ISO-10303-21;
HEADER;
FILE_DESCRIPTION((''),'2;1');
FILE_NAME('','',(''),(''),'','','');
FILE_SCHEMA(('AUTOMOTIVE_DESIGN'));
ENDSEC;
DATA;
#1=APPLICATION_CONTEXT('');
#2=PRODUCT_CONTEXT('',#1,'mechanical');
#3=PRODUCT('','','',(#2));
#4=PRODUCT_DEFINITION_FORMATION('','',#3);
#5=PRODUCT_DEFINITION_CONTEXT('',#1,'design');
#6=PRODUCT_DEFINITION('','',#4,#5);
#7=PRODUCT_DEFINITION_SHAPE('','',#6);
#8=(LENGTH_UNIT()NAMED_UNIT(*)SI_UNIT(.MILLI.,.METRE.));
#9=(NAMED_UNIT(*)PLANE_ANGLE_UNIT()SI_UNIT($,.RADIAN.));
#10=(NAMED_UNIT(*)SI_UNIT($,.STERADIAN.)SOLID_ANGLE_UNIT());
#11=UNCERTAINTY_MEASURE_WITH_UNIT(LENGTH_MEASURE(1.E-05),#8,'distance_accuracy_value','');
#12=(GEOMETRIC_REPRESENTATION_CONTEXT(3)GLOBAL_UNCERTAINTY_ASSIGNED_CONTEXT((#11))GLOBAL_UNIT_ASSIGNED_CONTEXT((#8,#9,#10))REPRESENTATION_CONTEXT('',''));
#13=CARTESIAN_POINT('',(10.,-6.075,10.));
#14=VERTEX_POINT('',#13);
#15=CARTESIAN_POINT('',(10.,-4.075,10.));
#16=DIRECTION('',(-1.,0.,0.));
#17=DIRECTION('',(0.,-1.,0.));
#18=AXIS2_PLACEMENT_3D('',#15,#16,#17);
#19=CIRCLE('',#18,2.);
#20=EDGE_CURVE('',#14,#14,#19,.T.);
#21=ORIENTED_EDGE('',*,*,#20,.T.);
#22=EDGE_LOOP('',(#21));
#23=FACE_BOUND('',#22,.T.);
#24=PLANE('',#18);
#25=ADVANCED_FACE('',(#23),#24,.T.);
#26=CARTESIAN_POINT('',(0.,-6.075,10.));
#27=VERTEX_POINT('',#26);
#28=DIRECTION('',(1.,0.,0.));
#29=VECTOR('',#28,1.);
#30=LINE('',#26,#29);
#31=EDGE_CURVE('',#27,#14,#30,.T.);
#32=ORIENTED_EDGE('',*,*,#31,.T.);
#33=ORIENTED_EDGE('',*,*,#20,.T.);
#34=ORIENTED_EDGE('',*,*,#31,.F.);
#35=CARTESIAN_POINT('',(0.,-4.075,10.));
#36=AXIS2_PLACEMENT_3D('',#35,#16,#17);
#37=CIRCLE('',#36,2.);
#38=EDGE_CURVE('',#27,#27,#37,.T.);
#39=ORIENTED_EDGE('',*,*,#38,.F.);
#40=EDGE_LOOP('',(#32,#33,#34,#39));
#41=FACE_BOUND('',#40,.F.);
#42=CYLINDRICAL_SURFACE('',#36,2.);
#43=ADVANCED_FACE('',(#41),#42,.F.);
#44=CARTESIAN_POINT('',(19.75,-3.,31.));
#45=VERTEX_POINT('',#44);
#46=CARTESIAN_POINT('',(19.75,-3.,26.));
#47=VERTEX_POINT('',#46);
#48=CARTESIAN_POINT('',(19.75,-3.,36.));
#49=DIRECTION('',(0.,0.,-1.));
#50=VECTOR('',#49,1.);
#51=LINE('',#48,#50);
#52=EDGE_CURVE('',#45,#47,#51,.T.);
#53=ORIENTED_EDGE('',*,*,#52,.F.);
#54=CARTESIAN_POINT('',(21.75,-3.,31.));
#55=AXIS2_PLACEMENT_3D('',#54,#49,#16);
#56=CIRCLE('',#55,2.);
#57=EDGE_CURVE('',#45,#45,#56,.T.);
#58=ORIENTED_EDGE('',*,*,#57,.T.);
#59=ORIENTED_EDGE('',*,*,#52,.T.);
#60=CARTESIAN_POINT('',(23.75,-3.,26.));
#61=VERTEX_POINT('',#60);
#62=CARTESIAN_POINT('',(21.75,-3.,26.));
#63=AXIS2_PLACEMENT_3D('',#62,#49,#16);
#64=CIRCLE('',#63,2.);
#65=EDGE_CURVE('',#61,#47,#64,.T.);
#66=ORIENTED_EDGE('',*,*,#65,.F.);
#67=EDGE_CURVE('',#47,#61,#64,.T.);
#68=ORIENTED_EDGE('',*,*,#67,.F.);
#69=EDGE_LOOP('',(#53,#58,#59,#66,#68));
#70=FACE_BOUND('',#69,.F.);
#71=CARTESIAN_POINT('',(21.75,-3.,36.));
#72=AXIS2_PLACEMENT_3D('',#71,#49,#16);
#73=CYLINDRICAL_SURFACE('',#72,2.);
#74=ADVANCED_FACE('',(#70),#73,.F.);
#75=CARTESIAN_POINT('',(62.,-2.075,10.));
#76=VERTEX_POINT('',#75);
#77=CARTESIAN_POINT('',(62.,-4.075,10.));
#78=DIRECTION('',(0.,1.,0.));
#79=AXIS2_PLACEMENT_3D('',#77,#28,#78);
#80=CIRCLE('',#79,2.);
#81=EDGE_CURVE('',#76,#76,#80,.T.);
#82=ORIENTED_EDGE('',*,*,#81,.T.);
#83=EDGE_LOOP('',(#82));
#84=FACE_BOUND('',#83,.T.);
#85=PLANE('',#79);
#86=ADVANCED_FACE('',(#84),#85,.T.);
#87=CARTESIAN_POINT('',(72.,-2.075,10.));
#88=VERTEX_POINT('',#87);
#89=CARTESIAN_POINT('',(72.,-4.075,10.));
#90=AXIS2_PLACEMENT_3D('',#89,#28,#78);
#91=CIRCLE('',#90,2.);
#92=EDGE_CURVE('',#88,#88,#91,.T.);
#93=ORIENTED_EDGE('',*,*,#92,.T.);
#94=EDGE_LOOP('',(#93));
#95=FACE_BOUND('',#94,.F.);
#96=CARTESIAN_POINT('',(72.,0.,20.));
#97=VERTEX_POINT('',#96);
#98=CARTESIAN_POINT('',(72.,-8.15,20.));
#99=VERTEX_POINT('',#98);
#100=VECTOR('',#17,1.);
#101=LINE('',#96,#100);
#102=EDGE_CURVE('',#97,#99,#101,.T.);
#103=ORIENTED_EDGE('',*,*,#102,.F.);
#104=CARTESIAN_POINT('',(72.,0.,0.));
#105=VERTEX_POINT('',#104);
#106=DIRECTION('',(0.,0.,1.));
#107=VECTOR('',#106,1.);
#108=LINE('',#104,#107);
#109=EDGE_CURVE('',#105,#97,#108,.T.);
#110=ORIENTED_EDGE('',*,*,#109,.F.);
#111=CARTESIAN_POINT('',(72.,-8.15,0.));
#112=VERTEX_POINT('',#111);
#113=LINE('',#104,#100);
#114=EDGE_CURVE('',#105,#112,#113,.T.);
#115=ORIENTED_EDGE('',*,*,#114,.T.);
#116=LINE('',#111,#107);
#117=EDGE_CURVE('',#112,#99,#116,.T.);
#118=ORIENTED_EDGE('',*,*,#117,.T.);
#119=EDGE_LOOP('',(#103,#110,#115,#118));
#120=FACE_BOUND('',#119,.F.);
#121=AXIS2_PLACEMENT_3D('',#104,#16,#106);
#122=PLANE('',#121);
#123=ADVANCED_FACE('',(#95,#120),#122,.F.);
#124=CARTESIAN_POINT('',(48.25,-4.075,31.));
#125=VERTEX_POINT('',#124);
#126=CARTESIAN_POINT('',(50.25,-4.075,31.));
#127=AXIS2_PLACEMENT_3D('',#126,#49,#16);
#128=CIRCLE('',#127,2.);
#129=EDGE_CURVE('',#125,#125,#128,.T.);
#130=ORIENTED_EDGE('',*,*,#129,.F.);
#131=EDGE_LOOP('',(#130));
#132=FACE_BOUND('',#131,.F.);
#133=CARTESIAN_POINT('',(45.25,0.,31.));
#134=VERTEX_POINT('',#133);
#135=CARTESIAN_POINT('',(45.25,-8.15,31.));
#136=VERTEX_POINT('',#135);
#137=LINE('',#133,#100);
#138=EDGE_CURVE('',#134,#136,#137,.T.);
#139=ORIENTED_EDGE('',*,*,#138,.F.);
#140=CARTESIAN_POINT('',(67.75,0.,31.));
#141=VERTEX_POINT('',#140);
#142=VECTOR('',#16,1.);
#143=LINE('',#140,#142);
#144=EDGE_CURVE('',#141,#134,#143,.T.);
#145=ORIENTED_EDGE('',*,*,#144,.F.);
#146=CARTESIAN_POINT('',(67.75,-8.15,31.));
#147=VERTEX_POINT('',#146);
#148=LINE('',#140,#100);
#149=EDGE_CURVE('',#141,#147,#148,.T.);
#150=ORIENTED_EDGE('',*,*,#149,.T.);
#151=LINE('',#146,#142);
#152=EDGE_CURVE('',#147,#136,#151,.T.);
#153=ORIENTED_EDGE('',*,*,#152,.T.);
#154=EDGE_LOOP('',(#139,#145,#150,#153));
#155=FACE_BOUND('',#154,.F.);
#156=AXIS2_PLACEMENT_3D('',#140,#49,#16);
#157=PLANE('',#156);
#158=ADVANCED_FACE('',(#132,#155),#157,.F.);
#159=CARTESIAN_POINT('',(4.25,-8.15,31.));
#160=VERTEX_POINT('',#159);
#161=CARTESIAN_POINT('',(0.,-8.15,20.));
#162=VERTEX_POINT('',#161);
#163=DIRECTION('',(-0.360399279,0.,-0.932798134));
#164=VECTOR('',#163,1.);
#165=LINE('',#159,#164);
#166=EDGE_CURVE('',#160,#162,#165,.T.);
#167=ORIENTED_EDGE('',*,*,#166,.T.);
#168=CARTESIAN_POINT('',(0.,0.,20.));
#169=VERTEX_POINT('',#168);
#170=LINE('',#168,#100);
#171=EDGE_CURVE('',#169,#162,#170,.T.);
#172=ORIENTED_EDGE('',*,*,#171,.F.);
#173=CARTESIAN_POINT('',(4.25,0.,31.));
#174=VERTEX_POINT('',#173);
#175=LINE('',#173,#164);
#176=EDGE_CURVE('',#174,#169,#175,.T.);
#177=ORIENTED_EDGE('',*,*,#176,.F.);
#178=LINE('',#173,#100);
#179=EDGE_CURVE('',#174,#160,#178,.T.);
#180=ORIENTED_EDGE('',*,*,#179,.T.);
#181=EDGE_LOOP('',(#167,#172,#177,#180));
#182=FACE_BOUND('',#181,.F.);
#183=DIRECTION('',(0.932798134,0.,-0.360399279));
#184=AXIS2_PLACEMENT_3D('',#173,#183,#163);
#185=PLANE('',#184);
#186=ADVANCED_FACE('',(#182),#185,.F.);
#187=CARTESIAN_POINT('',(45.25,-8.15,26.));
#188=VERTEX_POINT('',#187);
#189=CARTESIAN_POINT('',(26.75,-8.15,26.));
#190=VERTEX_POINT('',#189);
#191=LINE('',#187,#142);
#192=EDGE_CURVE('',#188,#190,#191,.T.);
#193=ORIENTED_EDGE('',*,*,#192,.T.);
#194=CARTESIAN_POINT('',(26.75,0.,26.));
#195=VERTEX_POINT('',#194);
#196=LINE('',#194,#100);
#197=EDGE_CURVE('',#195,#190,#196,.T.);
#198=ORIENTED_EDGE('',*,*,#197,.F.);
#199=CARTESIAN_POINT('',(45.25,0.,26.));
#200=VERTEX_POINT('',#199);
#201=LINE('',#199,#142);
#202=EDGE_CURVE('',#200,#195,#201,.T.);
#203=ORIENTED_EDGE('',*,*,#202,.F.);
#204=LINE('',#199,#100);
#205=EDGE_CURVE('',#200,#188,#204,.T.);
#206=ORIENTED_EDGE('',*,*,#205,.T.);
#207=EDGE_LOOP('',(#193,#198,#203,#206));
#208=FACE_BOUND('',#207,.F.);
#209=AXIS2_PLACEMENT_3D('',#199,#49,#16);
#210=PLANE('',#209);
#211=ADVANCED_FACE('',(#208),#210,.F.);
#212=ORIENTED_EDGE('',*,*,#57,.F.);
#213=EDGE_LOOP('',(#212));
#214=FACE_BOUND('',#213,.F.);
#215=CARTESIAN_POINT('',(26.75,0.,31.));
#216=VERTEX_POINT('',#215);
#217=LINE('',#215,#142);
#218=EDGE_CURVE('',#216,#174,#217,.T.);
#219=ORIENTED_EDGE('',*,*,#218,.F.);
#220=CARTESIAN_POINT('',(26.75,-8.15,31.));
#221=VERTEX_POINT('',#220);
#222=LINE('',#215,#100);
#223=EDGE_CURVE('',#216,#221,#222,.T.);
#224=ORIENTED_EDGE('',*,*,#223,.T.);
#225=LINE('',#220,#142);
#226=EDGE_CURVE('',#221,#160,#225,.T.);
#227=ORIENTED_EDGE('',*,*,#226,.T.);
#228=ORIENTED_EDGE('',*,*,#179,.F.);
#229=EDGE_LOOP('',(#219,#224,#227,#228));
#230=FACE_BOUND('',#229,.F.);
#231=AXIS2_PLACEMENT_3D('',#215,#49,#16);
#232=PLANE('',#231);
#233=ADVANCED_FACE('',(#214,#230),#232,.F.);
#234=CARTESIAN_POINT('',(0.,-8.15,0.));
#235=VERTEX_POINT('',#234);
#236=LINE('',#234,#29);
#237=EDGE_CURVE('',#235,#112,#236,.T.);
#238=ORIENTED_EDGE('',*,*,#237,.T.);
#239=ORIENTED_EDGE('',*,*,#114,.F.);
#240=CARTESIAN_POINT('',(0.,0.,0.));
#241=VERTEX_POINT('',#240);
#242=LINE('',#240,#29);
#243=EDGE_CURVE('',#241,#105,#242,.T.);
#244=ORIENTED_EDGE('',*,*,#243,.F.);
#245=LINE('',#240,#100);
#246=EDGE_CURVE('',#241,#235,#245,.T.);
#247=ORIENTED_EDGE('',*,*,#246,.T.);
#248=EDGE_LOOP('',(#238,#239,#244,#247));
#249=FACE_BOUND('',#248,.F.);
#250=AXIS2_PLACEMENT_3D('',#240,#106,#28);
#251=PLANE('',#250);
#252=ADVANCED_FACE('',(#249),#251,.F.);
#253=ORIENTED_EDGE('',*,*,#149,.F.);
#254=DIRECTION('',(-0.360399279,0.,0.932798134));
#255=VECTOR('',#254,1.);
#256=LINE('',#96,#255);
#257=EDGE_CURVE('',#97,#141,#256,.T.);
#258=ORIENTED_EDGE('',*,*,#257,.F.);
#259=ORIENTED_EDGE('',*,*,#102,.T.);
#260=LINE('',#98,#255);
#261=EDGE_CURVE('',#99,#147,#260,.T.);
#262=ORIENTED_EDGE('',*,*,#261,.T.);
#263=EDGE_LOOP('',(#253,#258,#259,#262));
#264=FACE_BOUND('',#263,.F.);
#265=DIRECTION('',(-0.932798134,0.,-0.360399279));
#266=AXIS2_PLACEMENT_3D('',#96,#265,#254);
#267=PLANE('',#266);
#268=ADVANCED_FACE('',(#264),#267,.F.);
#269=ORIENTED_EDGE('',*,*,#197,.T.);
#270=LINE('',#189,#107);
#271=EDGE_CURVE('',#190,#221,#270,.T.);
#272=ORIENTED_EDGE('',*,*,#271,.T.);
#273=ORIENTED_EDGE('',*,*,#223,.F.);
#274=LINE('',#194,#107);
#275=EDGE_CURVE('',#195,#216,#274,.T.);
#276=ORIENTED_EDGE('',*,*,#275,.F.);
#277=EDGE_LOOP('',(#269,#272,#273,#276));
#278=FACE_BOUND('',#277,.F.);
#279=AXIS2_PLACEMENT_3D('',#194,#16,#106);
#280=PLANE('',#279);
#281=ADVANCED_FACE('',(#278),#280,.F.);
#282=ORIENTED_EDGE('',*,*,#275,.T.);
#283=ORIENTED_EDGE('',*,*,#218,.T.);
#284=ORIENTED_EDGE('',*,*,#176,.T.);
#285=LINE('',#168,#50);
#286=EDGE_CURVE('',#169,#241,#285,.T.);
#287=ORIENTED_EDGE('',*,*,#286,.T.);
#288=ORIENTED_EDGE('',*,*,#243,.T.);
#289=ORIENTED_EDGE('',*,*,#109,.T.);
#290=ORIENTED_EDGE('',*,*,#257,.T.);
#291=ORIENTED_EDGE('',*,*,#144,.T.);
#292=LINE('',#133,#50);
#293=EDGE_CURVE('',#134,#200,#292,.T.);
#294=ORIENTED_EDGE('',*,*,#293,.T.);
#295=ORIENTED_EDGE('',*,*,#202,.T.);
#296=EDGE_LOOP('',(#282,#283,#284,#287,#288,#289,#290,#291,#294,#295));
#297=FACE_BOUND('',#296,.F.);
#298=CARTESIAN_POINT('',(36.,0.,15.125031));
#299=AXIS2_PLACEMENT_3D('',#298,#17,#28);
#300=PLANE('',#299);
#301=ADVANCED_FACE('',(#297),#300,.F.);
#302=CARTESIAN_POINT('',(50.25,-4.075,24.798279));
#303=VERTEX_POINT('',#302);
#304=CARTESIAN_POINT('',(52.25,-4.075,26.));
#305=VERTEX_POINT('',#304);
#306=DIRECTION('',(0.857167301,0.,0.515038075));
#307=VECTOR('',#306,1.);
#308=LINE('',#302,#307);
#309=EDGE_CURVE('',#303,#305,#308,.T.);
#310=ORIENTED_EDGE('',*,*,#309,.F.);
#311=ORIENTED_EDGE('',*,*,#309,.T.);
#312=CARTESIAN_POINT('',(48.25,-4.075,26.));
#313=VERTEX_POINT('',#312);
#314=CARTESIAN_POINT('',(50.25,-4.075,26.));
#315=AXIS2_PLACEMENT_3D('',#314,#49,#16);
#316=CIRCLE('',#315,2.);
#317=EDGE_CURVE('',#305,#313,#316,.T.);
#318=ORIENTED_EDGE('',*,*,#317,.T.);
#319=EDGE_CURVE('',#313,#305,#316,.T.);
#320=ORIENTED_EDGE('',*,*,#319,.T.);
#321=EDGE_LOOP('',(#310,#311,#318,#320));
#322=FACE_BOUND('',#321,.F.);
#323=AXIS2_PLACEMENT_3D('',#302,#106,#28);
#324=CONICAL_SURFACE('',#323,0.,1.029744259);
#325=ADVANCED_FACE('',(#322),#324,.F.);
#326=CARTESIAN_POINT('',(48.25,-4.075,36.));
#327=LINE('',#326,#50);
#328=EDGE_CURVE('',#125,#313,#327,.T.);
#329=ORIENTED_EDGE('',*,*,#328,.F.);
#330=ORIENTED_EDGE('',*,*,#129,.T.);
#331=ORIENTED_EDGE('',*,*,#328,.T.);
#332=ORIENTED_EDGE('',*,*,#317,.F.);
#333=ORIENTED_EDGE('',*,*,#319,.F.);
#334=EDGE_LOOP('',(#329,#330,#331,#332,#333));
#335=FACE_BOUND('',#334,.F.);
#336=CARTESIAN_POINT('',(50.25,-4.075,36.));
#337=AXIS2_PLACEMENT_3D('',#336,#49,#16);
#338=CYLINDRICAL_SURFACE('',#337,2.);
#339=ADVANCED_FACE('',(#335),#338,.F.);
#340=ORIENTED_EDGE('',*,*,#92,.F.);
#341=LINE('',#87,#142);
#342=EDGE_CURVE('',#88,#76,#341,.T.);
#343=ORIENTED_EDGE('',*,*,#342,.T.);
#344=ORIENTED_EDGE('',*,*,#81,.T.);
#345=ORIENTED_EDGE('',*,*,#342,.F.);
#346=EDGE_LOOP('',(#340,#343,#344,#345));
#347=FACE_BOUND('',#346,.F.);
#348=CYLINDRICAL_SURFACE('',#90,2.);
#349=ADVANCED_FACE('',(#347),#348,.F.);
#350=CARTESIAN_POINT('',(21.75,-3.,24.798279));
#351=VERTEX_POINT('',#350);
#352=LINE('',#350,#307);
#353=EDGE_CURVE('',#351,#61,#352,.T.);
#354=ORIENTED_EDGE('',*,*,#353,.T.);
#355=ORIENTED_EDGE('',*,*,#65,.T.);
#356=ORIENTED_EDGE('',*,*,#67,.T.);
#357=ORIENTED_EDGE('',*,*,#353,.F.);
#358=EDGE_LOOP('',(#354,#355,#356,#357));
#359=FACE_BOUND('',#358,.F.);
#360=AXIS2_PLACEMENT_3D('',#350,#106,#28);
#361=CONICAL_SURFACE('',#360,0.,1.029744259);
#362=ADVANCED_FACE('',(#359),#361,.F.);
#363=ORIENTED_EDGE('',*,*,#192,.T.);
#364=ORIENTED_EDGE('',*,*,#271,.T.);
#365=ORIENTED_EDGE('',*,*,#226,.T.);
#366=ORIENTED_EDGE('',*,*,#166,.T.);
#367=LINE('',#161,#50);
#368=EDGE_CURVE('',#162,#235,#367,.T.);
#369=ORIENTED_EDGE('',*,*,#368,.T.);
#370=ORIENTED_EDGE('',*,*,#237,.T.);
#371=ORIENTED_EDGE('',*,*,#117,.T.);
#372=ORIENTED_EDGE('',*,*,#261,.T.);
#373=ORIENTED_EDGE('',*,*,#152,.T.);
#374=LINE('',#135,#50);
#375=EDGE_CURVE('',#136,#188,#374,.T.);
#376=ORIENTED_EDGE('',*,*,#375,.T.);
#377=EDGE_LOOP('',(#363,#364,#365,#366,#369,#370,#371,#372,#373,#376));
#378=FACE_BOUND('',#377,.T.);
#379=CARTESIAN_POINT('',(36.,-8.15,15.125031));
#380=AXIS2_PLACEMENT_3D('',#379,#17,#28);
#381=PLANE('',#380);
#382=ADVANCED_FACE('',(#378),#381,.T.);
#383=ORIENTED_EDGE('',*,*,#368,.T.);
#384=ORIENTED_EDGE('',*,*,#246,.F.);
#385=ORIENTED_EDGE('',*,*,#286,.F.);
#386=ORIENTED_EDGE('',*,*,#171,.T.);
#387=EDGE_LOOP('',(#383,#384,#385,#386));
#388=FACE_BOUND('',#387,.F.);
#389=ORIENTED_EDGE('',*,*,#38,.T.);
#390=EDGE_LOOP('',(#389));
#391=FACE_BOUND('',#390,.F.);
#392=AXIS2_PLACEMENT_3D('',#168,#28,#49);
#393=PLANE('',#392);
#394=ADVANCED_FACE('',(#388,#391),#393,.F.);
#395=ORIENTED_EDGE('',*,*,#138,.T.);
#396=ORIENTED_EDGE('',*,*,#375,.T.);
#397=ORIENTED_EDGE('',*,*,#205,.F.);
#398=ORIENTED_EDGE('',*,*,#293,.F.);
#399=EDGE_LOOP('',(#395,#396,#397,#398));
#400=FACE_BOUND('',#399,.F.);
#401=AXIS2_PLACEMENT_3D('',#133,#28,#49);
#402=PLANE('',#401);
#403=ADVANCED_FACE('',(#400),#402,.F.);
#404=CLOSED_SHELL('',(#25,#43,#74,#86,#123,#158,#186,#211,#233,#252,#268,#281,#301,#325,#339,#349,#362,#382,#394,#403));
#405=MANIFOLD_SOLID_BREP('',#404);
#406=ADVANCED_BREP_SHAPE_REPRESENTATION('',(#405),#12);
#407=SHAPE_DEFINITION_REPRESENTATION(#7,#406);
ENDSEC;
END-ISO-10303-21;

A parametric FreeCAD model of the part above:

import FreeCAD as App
import Part
import Sketcher
from FreeCAD import Vector
Q = App.Units.Quantity


def add_polygon(sketch, points):
    """Adds a closed chain of lines whose ends are joined by coincident constraints."""
    first, n = sketch.GeometryCount, len(points)
    for a, b in zip(points, points[1:] + points[:1]):
        sketch.addGeometry(Part.LineSegment(App.Vector(*a, 0), App.Vector(*b, 0)), False)
    for i in range(n):
        sketch.addConstraint(Sketcher.Constraint("Coincident", first + i, 2, first + (i + 1) % n, 1))

doc = App.newDocument("Part")
body = doc.addObject("PartDesign::Body", "Body")

# Sketch on XZ plane
sketch1 = body.newObject("Sketcher::SketchObject", "Sketch")
sketch1.AttachmentSupport = (doc.getObject("XZ_Plane"), [""])
sketch1.MapMode = "FlatFace"
add_polygon(sketch1, [(0, 20), (0, 0), (72, 0), (72, 20), (68, 31), (45, 31), (45, 26), (27, 26), (27, 31), (4, 31)])  # lines 0-9
sketch1.addConstraint(Sketcher.Constraint("Vertical", 0))
sketch1.addConstraint(Sketcher.Constraint("Horizontal", 1))
sketch1.addConstraint(Sketcher.Constraint("Vertical", 2))
sketch1.addConstraint(Sketcher.Constraint("Horizontal", 4))
sketch1.addConstraint(Sketcher.Constraint("Vertical", 5))
sketch1.addConstraint(Sketcher.Constraint("Horizontal", 6))
sketch1.addConstraint(Sketcher.Constraint("Vertical", 7))
sketch1.addConstraint(Sketcher.Constraint("Horizontal", 8))
sketch1.addConstraint(Sketcher.Constraint("Coincident", 0, 2, -1, 1))
sketch1.addConstraint(Sketcher.Constraint("Horizontal", 4, 2, 7, 2))
sketch1.addConstraint(Sketcher.Constraint("Horizontal", 2, 2, 9, 2))
sketch1.addConstraint(Sketcher.Constraint("Equal", 4, 8))
sketch1.addConstraint(Sketcher.Constraint("Equal", 3, 9))
sketch1.addConstraint(Sketcher.Constraint("DistanceX", 1, 1, 1, 2, Q("72 mm")))
sketch1.addConstraint(Sketcher.Constraint("DistanceY", 0, 2, 0, 1, Q("20 mm")))
sketch1.addConstraint(Sketcher.Constraint("DistanceY", 5, 2, 5, 1, Q("5 mm")))
sketch1.addConstraint(Sketcher.Constraint("DistanceX", 4, 2, 4, 1, Q("22.5 mm")))
sketch1.addConstraint(Sketcher.Constraint("DistanceX", 6, 2, 6, 1, Q("18.5 mm")))
sketch1.addConstraint(Sketcher.Constraint("DistanceY", -1, 1, 3, 2, Q("31 mm")))
pad1 = body.newObject("PartDesign::Pad", "Pad")
pad1.Profile = sketch1
pad1.Length = 8.15

# Sketch on XY plane
sketch2 = body.newObject("Sketcher::SketchObject", "Sketch001")
sketch2.AttachmentSupport = (doc.getObject("XY_Plane"), [""])
sketch2.MapMode = "FlatFace"
sketch2.AttachmentOffset = App.Placement(Vector(0, 0, 31), App.Rotation())
sketch2.addGeometry(Part.Circle(Vector(21.8, -3, 0), Vector(0, 0, 1), 2), False)
sketch2.addGeometry(Part.Circle(Vector(50.2, -4.1, 0), Vector(0, 0, 1), 2), False)
sketch2.addConstraint(Sketcher.Constraint("Equal", 0, 1))
sketch2.addConstraint(Sketcher.Constraint("Diameter", 0, Q("4 mm")))
sketch2.addConstraint(Sketcher.Constraint("DistanceY", 0, 3, -1, 1, Q("3 mm")))
sketch2.addConstraint(Sketcher.Constraint("DistanceX", 0, 3, 1, 3, Q("28.5 mm")))
sketch2.addConstraint(Sketcher.Constraint("DistanceX", -1, 1, 0, 3, Q("21.75 mm")))
sketch2.addConstraint(Sketcher.Constraint("DistanceY", 1, 3, -1, 1, Q("4.075 mm")))
doc.recompute()
hole = body.newObject("PartDesign::Hole", "Hole")
hole.Profile = sketch2
hole.ThreadType = "None"
hole.Diameter = 4
hole.DepthType = "Dimension"
hole.Depth = 5
hole.DrillPoint = "Angled"
hole.DrillPointAngle = 118

# Sketch on YZ plane
sketch3 = body.newObject("Sketcher::SketchObject", "Sketch002")
sketch3.AttachmentSupport = (doc.getObject("YZ_Plane"), [""])
sketch3.MapMode = "FlatFace"
sketch3.AttachmentOffset = App.Placement(Vector(0, 0, 72), App.Rotation())
sketch3.addGeometry(Part.Circle(Vector(-4.1, 10, 0), Vector(0, 0, 1), 2), False)
sketch3.addConstraint(Sketcher.Constraint("Diameter", 0, Q("4 mm")))
sketch3.addConstraint(Sketcher.Constraint("DistanceY", -1, 1, 0, 3, Q("10 mm")))
sketch3.addConstraint(Sketcher.Constraint("DistanceX", 0, 3, -1, 1, Q("4.075 mm")))
pocket1 = body.newObject("PartDesign::Pocket", "Pocket")
pocket1.Profile = sketch3
pocket1.Length = 10

# Sketch on YZ plane
sketch4 = body.newObject("Sketcher::SketchObject", "Sketch003")
sketch4.AttachmentSupport = (doc.getObject("YZ_Plane"), [""])
sketch4.MapMode = "FlatFace"
sketch4.addGeometry(Part.Circle(Vector(-4.1, 10, 0), Vector(0, 0, 1), 2), False)
sketch4.addConstraint(Sketcher.Constraint("Diameter", 0, Q("4 mm")))
sketch4.addConstraint(Sketcher.Constraint("DistanceY", -1, 1, 0, 3, Q("10 mm")))
sketch4.addConstraint(Sketcher.Constraint("DistanceX", 0, 3, -1, 1, Q("4.075 mm")))
pocket2 = body.newObject("PartDesign::Pocket", "Pocket001")
pocket2.Profile = sketch4
pocket2.Length = 10
pocket2.Reversed = True

doc.recompute()
